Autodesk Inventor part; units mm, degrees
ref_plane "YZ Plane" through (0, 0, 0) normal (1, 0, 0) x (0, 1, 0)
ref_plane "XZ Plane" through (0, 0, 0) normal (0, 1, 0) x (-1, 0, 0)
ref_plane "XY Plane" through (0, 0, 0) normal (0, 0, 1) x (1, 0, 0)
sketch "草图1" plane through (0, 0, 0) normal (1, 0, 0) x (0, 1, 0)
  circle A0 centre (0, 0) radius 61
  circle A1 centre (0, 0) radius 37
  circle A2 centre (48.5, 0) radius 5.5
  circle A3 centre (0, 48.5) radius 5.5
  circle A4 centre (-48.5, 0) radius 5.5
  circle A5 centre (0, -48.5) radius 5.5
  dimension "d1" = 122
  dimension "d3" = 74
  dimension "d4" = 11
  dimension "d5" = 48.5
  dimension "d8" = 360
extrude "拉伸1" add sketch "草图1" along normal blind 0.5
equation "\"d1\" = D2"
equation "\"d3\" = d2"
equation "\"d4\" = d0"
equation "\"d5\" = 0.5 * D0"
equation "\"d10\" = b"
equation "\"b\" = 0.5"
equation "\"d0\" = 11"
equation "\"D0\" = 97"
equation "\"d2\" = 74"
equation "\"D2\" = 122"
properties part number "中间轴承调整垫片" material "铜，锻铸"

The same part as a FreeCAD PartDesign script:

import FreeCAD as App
import Part
import Sketcher

V = App.Vector
Q = App.Units.Quantity

doc = App.newDocument("Part")
body = doc.addObject("PartDesign::Body", "Body")

sketch1 = body.newObject("Sketcher::SketchObject", "Sketch")
sketch1.AttachmentSupport = (doc.getObject("YZ_Plane"), [""])
sketch1.MapMode = "FlatFace"
sketch1.addGeometry(Part.Circle(V(0, 0, 0), V(0, 0, 1), 61), False)
sketch1.addGeometry(Part.Circle(V(0, -48.5, 0), V(0, 0, 1), 5.5), False)
sketch1.addGeometry(Part.Circle(V(-48.5, 0, 0), V(0, 0, 1), 5.5), False)
sketch1.addGeometry(Part.Circle(V(0, 0, 0), V(0, 0, 1), 37), False)
sketch1.addGeometry(Part.Circle(V(48.5, 0, 0), V(0, 0, 1), 5.5), False)
sketch1.addGeometry(Part.Circle(V(0, 48.5, 0), V(0, 0, 1), 5.5), False)
sketch1.addConstraint(Sketcher.Constraint("Coincident", 0, 3, -1, 1))
sketch1.addConstraint(Sketcher.Constraint("Coincident", 3, 3, -1, 1))
sketch1.addConstraint(Sketcher.Constraint("Equal", 1, 2))
sketch1.addConstraint(Sketcher.Constraint("Equal", 2, 4))
sketch1.addConstraint(Sketcher.Constraint("Equal", 4, 5))
sketch1.addConstraint(Sketcher.Constraint("Symmetric", 2, 3, 4, 3, -1, 1))
sketch1.addConstraint(Sketcher.Constraint("Symmetric", 1, 3, 5, 3, -1, 1))
sketch1.addConstraint(Sketcher.Constraint("PointOnObject", 1, 3, -2))
sketch1.addConstraint(Sketcher.Constraint("PointOnObject", 2, 3, -1))
sketch1.addConstraint(Sketcher.Constraint("Diameter", 0, Q("122 mm")))
sketch1.addConstraint(Sketcher.Constraint("Diameter", 1, Q("11 mm")))
sketch1.addConstraint(Sketcher.Constraint("Diameter", 3, Q("74 mm")))
sketch1.addConstraint(Sketcher.Constraint("DistanceY", 1, 3, -1, 1, Q("48.5 mm")))
sketch1.addConstraint(Sketcher.Constraint("DistanceX", 2, 3, -1, 1, Q("48.5 mm")))
pad1 = body.newObject("PartDesign::Pad", "Pad")
pad1.Profile = sketch1
pad1.Length = 0.5

doc.recompute()
